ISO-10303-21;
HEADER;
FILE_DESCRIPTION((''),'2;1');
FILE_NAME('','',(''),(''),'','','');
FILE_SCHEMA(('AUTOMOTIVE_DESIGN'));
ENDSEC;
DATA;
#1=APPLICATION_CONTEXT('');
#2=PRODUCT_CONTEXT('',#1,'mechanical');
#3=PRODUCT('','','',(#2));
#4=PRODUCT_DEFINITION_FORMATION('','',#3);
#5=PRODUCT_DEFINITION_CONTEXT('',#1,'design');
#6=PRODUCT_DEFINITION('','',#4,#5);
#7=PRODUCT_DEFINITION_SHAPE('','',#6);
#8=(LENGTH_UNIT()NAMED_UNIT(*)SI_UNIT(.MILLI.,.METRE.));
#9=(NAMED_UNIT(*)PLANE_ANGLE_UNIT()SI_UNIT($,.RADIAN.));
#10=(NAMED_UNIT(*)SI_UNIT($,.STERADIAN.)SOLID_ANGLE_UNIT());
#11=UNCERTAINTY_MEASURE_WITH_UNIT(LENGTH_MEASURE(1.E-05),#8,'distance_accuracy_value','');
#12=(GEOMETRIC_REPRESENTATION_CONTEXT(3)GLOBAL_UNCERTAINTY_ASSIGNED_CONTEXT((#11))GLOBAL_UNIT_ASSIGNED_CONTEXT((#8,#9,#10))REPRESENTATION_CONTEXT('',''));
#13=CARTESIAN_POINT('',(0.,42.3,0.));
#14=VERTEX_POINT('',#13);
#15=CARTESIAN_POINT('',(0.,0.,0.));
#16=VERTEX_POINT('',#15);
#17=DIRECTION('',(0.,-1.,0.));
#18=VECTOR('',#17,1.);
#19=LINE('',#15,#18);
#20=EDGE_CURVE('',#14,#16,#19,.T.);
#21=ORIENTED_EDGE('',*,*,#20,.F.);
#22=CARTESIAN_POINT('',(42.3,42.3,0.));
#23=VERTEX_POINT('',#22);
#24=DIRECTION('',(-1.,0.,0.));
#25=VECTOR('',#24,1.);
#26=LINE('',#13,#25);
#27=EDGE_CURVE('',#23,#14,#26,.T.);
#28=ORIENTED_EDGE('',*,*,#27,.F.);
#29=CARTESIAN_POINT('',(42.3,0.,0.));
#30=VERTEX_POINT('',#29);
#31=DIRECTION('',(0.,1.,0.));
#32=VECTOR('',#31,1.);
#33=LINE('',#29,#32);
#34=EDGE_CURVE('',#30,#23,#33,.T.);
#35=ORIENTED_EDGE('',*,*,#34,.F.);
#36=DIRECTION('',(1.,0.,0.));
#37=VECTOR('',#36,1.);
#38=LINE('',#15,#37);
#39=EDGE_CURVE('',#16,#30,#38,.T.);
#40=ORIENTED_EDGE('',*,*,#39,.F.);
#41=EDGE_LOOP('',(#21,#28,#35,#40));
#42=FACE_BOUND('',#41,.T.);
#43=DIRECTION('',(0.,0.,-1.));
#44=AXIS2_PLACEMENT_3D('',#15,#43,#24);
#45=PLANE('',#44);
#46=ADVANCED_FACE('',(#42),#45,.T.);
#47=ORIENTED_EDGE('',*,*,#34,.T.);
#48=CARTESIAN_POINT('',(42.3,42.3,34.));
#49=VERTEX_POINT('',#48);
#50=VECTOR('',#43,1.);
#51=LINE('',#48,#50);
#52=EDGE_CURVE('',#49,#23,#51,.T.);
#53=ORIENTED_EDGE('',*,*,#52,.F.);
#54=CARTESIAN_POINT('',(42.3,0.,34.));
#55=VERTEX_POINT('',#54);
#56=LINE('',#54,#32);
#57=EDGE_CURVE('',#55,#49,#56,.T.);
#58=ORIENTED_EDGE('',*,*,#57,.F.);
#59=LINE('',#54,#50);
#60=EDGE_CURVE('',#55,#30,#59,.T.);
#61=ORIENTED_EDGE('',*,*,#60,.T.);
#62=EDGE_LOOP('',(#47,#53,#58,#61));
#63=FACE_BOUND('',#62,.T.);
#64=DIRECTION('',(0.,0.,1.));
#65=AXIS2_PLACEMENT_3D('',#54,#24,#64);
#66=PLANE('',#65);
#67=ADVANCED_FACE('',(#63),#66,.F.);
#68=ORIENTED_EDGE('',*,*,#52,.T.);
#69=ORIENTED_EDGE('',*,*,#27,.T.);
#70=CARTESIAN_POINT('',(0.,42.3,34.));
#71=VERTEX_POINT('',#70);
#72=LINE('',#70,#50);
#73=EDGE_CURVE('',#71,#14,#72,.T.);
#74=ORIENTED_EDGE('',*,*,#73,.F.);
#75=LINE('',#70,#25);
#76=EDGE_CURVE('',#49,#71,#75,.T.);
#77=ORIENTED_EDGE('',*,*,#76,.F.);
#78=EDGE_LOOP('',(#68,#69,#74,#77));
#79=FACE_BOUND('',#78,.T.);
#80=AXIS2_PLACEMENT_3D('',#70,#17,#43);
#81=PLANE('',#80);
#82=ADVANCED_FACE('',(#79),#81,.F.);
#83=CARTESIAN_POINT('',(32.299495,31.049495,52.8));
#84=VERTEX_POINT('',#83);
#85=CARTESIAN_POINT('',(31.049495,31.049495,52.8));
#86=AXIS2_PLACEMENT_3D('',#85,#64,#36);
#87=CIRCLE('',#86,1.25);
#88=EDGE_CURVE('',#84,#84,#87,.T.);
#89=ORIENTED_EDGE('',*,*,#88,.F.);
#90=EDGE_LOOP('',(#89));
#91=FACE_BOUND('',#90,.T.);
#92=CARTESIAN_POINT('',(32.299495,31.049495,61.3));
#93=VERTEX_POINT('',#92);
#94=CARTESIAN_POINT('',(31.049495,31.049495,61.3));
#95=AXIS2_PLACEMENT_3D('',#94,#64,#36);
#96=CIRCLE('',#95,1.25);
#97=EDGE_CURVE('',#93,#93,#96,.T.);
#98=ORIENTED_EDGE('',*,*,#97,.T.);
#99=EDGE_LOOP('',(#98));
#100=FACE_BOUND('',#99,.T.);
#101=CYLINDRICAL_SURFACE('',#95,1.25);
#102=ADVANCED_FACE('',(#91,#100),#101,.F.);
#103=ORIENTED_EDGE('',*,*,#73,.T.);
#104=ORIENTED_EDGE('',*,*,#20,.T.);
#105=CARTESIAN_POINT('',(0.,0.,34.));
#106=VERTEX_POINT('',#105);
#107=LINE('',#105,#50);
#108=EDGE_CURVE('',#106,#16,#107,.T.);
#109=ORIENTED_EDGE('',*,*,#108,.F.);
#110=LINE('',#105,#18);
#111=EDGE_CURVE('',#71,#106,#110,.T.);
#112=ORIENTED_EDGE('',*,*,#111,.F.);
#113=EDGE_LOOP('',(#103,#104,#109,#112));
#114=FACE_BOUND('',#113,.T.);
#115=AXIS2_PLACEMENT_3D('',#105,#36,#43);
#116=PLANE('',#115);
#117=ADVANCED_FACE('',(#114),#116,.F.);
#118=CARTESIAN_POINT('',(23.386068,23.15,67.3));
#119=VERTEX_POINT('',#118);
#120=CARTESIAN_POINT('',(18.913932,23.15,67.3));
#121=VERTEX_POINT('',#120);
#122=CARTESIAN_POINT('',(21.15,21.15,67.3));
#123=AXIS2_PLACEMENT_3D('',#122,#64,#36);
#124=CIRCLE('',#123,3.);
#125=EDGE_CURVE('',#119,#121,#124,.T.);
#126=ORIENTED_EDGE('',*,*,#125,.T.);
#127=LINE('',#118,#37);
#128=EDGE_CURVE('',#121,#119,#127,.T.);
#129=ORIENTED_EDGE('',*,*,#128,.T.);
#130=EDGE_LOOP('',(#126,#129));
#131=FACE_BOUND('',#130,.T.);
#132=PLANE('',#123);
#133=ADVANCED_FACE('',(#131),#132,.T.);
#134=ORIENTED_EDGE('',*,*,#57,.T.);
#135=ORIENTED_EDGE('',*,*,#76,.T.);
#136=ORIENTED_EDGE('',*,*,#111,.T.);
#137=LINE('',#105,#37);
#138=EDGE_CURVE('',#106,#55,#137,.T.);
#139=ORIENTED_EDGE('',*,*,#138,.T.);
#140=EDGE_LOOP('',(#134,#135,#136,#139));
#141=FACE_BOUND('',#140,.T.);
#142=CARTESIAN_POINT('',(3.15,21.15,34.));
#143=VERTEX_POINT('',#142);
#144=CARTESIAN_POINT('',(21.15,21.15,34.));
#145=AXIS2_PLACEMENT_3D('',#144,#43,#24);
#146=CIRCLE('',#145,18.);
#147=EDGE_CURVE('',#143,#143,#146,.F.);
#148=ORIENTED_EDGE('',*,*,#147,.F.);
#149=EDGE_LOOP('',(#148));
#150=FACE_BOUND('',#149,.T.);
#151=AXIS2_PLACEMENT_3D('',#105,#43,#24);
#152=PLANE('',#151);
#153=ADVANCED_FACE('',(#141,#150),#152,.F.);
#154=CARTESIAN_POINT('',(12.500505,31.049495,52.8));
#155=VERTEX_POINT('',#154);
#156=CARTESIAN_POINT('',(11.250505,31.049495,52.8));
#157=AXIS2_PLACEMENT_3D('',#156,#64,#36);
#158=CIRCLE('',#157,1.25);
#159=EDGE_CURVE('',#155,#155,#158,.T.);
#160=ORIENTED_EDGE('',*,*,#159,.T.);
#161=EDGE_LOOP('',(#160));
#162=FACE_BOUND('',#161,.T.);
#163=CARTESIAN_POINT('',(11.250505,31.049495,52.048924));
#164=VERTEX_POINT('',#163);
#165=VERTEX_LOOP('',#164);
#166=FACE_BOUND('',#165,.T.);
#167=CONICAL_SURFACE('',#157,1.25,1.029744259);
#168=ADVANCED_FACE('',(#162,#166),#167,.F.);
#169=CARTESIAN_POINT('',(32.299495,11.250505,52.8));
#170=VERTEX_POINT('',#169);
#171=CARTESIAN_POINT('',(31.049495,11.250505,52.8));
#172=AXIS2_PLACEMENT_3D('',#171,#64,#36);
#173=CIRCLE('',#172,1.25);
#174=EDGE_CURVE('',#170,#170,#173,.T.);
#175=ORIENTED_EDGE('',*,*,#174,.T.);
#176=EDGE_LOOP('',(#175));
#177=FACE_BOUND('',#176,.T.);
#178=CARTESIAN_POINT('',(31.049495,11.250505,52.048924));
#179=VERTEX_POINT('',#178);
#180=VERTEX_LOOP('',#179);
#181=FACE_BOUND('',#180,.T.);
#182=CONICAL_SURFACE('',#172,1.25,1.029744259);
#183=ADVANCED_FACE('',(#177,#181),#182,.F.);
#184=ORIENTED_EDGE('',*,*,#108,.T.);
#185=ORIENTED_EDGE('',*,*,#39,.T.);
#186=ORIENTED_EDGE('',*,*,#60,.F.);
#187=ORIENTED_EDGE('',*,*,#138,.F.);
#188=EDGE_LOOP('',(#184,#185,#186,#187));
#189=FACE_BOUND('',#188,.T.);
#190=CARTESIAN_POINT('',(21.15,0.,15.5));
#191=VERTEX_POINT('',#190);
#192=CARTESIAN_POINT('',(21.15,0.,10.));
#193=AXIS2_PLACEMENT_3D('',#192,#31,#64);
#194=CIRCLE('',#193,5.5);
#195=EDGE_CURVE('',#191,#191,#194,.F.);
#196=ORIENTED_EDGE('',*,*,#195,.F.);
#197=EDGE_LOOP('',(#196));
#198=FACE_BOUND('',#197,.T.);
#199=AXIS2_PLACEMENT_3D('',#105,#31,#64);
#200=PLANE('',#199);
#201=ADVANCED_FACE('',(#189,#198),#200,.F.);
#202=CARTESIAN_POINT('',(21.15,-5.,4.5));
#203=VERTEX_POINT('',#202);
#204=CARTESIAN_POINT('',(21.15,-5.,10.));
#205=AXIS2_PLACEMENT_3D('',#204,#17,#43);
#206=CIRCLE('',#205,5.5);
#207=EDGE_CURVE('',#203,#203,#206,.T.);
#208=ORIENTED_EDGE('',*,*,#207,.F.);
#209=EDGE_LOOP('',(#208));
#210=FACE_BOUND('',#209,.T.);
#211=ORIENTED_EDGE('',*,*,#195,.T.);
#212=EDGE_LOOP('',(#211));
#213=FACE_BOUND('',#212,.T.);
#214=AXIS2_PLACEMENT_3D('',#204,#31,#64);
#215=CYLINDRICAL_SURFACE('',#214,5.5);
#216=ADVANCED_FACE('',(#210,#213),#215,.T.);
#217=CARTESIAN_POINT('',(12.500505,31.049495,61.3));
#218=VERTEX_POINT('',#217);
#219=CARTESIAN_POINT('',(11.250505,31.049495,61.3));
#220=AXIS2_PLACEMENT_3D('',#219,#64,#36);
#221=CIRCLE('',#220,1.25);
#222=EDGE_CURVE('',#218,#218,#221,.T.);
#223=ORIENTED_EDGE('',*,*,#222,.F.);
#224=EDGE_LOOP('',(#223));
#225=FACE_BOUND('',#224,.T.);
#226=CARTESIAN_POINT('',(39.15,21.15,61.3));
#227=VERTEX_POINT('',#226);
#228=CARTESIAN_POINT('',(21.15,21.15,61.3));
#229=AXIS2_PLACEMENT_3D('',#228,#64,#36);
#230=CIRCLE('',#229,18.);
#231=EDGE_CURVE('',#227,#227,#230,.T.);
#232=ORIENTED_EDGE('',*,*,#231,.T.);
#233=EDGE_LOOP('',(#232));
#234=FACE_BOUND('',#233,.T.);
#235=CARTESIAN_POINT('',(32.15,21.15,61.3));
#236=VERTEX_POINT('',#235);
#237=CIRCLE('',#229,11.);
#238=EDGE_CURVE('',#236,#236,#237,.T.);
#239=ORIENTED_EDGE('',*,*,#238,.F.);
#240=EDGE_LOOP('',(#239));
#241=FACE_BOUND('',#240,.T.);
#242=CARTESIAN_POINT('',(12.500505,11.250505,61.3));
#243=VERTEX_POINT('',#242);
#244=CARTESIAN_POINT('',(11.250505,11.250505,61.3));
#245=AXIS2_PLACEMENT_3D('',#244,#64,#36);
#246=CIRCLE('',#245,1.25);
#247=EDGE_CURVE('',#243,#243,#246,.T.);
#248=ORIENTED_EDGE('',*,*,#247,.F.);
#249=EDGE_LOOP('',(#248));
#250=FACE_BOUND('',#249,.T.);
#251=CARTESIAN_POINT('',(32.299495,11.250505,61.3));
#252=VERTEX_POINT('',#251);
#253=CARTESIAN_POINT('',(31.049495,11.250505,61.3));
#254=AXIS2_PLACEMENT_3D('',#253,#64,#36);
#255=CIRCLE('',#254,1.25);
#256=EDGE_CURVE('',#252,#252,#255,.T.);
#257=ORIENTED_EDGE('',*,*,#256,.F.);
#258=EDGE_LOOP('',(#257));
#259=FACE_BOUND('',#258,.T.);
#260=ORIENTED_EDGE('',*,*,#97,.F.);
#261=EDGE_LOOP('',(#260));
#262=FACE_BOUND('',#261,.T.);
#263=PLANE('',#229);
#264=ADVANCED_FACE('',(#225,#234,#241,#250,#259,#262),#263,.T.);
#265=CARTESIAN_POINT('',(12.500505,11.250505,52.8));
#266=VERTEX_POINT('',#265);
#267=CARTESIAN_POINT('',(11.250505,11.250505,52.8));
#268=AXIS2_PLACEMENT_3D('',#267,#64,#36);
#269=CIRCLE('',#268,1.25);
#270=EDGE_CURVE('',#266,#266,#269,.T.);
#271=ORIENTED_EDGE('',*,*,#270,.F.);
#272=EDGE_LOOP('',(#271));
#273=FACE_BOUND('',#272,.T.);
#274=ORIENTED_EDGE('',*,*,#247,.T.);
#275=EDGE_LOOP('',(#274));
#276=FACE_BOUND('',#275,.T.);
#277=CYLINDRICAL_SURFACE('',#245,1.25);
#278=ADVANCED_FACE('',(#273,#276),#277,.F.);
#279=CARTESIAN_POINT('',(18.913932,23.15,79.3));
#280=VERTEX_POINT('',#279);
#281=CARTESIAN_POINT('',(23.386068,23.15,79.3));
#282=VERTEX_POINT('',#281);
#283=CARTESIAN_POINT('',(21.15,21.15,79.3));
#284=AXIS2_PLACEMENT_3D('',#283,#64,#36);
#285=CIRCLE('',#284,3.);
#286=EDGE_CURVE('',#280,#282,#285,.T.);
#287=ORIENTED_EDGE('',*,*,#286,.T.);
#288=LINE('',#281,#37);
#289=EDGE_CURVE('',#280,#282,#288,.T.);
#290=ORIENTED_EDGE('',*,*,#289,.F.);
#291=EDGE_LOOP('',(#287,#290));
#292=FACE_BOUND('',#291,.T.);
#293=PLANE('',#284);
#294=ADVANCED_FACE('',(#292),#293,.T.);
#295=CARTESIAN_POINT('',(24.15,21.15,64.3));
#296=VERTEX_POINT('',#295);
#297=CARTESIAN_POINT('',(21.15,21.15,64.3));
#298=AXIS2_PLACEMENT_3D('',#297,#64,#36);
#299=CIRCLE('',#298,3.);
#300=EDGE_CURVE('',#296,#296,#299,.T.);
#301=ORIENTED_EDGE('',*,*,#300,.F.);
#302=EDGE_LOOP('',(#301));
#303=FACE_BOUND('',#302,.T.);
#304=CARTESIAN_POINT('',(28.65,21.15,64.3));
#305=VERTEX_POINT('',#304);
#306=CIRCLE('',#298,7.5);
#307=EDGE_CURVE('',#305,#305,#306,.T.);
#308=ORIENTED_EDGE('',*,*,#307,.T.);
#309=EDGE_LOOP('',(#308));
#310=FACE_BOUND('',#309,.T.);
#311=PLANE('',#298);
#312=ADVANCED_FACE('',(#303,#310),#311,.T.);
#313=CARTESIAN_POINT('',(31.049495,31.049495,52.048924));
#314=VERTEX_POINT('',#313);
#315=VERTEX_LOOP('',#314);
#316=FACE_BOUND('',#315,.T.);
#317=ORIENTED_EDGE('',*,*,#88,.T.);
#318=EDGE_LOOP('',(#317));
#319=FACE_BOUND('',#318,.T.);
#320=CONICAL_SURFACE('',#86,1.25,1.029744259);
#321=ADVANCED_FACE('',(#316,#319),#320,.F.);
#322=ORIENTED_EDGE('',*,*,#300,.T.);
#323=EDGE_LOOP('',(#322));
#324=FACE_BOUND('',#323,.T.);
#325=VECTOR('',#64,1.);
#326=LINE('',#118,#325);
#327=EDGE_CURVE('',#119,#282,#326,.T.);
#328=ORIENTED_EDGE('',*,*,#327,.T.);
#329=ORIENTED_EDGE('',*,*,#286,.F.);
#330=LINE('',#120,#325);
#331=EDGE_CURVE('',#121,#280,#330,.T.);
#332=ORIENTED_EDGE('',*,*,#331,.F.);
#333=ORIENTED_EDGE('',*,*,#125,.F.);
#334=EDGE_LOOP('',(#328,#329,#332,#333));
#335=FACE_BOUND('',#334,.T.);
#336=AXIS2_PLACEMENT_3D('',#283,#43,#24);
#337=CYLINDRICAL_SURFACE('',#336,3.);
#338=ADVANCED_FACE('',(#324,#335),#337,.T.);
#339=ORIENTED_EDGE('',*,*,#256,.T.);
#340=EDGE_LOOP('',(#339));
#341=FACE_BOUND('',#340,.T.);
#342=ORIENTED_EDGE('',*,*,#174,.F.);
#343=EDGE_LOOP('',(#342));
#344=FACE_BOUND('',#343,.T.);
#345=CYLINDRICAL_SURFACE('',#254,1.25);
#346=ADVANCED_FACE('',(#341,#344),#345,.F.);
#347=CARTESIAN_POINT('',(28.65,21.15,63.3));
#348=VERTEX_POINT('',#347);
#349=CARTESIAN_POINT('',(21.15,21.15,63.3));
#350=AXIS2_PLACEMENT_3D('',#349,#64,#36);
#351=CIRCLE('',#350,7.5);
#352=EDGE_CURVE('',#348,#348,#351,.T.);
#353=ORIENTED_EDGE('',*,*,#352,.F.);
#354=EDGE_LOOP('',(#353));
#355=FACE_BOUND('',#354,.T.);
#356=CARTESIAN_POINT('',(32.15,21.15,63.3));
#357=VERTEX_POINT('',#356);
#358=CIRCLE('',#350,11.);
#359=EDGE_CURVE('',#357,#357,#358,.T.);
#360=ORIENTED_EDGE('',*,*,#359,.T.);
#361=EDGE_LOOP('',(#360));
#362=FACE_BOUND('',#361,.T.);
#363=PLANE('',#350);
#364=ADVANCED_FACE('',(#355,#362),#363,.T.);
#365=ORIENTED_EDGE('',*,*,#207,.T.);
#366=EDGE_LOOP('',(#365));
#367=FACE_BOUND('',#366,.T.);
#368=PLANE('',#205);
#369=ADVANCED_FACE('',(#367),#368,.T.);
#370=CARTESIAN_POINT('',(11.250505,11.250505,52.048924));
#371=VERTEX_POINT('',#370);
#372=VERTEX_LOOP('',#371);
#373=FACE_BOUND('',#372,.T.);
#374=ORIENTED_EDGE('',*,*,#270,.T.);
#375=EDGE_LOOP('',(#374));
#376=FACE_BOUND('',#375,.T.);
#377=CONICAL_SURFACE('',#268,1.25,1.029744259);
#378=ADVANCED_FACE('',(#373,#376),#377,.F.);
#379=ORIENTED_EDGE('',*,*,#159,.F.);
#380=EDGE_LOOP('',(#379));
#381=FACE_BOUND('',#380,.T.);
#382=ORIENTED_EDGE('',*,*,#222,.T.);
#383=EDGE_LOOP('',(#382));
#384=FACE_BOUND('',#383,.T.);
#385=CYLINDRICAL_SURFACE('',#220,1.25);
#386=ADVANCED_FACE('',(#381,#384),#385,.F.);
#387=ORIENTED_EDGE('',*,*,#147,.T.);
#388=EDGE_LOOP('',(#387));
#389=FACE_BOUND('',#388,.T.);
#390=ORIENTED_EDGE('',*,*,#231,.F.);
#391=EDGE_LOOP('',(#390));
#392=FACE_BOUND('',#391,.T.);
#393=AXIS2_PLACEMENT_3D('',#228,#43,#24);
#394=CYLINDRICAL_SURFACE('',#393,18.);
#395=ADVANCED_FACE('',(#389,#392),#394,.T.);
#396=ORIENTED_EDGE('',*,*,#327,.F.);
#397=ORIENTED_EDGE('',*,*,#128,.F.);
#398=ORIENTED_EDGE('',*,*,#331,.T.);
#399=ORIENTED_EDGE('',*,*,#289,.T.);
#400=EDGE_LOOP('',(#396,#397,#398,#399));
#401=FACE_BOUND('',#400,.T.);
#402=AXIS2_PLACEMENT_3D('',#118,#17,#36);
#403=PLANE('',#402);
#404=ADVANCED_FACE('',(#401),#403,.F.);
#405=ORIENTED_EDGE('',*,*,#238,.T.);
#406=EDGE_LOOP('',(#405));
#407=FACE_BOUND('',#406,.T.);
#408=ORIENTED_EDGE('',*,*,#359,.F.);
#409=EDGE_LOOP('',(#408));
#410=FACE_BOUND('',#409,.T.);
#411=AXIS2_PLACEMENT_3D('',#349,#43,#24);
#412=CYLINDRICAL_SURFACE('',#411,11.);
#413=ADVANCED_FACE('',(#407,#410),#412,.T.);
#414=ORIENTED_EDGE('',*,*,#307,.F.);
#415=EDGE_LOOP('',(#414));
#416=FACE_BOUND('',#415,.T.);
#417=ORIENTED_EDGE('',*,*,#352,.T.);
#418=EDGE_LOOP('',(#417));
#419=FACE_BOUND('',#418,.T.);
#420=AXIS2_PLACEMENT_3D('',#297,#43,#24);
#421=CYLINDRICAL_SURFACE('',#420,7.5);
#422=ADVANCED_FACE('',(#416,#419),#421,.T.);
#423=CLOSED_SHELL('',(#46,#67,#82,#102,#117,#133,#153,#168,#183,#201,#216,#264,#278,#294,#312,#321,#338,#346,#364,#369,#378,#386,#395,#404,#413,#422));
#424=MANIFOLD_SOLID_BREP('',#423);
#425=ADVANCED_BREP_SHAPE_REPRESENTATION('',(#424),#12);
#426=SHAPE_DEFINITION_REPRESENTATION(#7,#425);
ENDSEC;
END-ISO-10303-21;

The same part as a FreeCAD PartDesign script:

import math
import FreeCAD as App
import Part
import Sketcher
from FreeCAD import Vector
Q = App.Units.Quantity


def add_polygon(sketch, points):
    """Adds a closed chain of lines whose ends are joined by coincident constraints."""
    first, n = sketch.GeometryCount, len(points)
    for a, b in zip(points, points[1:] + points[:1]):
        sketch.addGeometry(Part.LineSegment(App.Vector(*a, 0), App.Vector(*b, 0)), False)
    for i in range(n):
        sketch.addConstraint(Sketcher.Constraint("Coincident", first + i, 2, first + (i + 1) % n, 1))

doc = App.newDocument("Part")
body = doc.addObject("PartDesign::Body", "Body")

sketch1 = body.newObject("Sketcher::SketchObject", "Sketch")
sketch1.AttachmentSupport = (doc.getObject("XY_Plane"), [""])
sketch1.MapMode = "FlatFace"
add_polygon(sketch1, [(0, 42), (0, 0), (42, 0), (42, 42)])
sketch1.addConstraint(Sketcher.Constraint("Vertical", 0))
sketch1.addConstraint(Sketcher.Constraint("Horizontal", 1))
sketch1.addConstraint(Sketcher.Constraint("Vertical", 2))
sketch1.addConstraint(Sketcher.Constraint("Horizontal", 3))
sketch1.addConstraint(Sketcher.Constraint("Coincident", 0, 2, -1, 1))
sketch1.addConstraint(Sketcher.Constraint("Equal", 3, 0))
sketch1.addConstraint(Sketcher.Constraint("DistanceX", 1, 1, 1, 2, Q("42.3 mm")))
pad1 = body.newObject("PartDesign::Pad", "Pad")
pad1.Profile = sketch1
pad1.Length = 34

sketch2 = body.newObject("Sketcher::SketchObject", "Sketch001")
sketch2.AttachmentSupport = (doc.getObject("XY_Plane"), [""])
sketch2.MapMode = "FlatFace"
sketch2.AttachmentOffset = App.Placement(Vector(0, 0, 34), App.Rotation())
sketch2.addGeometry(Part.Circle(Vector(21, 21, 0), Vector(0, 0, 1), 18), False)
sketch2.addConstraint(Sketcher.Constraint("Diameter", 0, Q("36 mm")))
sketch2.addConstraint(Sketcher.Constraint("DistanceX", -1, 1, 0, 3, Q("21.15 mm")))
sketch2.addConstraint(Sketcher.Constraint("DistanceY", -1, 1, 0, 3, Q("21.15 mm")))
pad2 = body.newObject("PartDesign::Pad", "Pad001")
pad2.Profile = sketch2
pad2.Length = 27.3

sketch3 = body.newObject("Sketcher::SketchObject", "Sketch002")
sketch3.AttachmentSupport = (doc.getObject("XY_Plane"), [""])
sketch3.MapMode = "FlatFace"
sketch3.AttachmentOffset = App.Placement(Vector(0, 0, 61.3), App.Rotation())
sketch3.addGeometry(Part.Circle(Vector(21, 21, 0), Vector(0, 0, 1), 11), False)
sketch3.addConstraint(Sketcher.Constraint("Diameter", 0, Q("22 mm")))
sketch3.addConstraint(Sketcher.Constraint("DistanceX", -1, 1, 0, 3, Q("21.15 mm")))
sketch3.addConstraint(Sketcher.Constraint("DistanceY", -1, 1, 0, 3, Q("21.15 mm")))
pad3 = body.newObject("PartDesign::Pad", "Pad002")
pad3.Profile = sketch3
pad3.Length = 2

sketch4 = body.newObject("Sketcher::SketchObject", "Sketch003")
sketch4.AttachmentSupport = (doc.getObject("XY_Plane"), [""])
sketch4.MapMode = "FlatFace"
sketch4.AttachmentOffset = App.Placement(Vector(0, 0, 63.3), App.Rotation())
sketch4.addGeometry(Part.Circle(Vector(21, 21, 0), Vector(0, 0, 1), 8), False)
sketch4.addConstraint(Sketcher.Constraint("Diameter", 0, Q("15 mm")))
sketch4.addConstraint(Sketcher.Constraint("DistanceX", -1, 1, 0, 3, Q("21.15 mm")))
sketch4.addConstraint(Sketcher.Constraint("DistanceY", -1, 1, 0, 3, Q("21.15 mm")))
pad4 = body.newObject("PartDesign::Pad", "Pad003")
pad4.Profile = sketch4
pad4.Length = 1

sketch5 = body.newObject("Sketcher::SketchObject", "Sketch004")
sketch5.AttachmentSupport = (doc.getObject("XY_Plane"), [""])
sketch5.MapMode = "FlatFace"
sketch5.AttachmentOffset = App.Placement(Vector(0, 0, 64.3), App.Rotation())
sketch5.addGeometry(Part.Circle(Vector(21.1, 21.1, 0), Vector(0, 0, 1), 3), False)
sketch5.addConstraint(Sketcher.Constraint("Diameter", 0, Q("6 mm")))
sketch5.addConstraint(Sketcher.Constraint("DistanceX", -1, 1, 0, 3, Q("21.15 mm")))
sketch5.addConstraint(Sketcher.Constraint("DistanceY", -1, 1, 0, 3, Q("21.15 mm")))
pad5 = body.newObject("PartDesign::Pad", "Pad004")
pad5.Profile = sketch5
pad5.Length = 15

sketch6 = body.newObject("Sketcher::SketchObject", "Sketch005")
sketch6.AttachmentSupport = (doc.getObject("XY_Plane"), [""])
sketch6.MapMode = "FlatFace"
sketch6.AttachmentOffset = App.Placement(Vector(0, 0, 67.3), App.Rotation())
sketch6.addGeometry(Part.LineSegment(Vector(18.9, 23.1, 0), Vector(23.4, 23.1, 0)), False)
sketch6.addGeometry(Part.ArcOfCircle(Part.Circle(Vector(21.1, 21.2, 0), Vector(0, 0, 1), 3), math.radians(42), math.radians(138)), False)
sketch6.addConstraint(Sketcher.Constraint("Coincident", 0, 1, 1, 2))
sketch6.addConstraint(Sketcher.Constraint("Coincident", 1, 1, 0, 2))
sketch6.addConstraint(Sketcher.Constraint("Horizontal", 0))
sketch6.addConstraint(Sketcher.Constraint("Radius", 1, Q("3 mm")))
sketch6.addConstraint(Sketcher.Constraint("DistanceY", 1, 3, 0, 1, Q("2 mm")))
sketch6.addConstraint(Sketcher.Constraint("DistanceX", -1, 1, 1, 3, Q("21.15 mm")))
sketch6.addConstraint(Sketcher.Constraint("DistanceY", -1, 1, 1, 3, Q("21.15 mm")))
pocket1 = body.newObject("PartDesign::Pocket", "Pocket")
pocket1.Profile = sketch6
pocket1.Length = 12
pocket1.Reversed = True

sketch7 = body.newObject("Sketcher::SketchObject", "Sketch006")
sketch7.AttachmentSupport = (doc.getObject("XY_Plane"), [""])
sketch7.MapMode = "FlatFace"
sketch7.AttachmentOffset = App.Placement(Vector(0, 0, 61.3), App.Rotation())
sketch7.addGeometry(Part.Circle(Vector(11.3, 11.3, 0), Vector(0, 0, 1), 1.2), False)
sketch7.addGeometry(Part.Circle(Vector(31, 11.3, 0), Vector(0, 0, 1), 1.2), False)
sketch7.addGeometry(Part.Circle(Vector(31, 31, 0), Vector(0, 0, 1), 1.2), False)
sketch7.addGeometry(Part.Circle(Vector(11.3, 31, 0), Vector(0, 0, 1), 1.2), False)
sketch7.addConstraint(Sketcher.Constraint("Equal", 0, 1))
sketch7.addConstraint(Sketcher.Constraint("Equal", 1, 2))
sketch7.addConstraint(Sketcher.Constraint("Equal", 2, 3))
sketch7.addConstraint(Sketcher.Constraint("Horizontal", 0, 3, 1, 3))
sketch7.addConstraint(Sketcher.Constraint("Horizontal", 2, 3, 3, 3))
sketch7.addConstraint(Sketcher.Constraint("Vertical", 1, 3, 2, 3))
sketch7.addConstraint(Sketcher.Constraint("Vertical", 0, 3, 3, 3))
sketch7.addConstraint(Sketcher.Constraint("Diameter", 0, Q("2.5 mm")))
sketch7.addConstraint(Sketcher.Constraint("DistanceX", 0, 3, 1, 3, Q("19.79899 mm")))
sketch7.addConstraint(Sketcher.Constraint("DistanceY", 1, 3, 2, 3, Q("19.79899 mm")))
sketch7.addConstraint(Sketcher.Constraint("DistanceX", -1, 1, 0, 3, Q("11.250505 mm")))
sketch7.addConstraint(Sketcher.Constraint("DistanceY", -1, 1, 0, 3, Q("11.250505 mm")))
doc.recompute()
hole = body.newObject("PartDesign::Hole", "Hole")
hole.Profile = sketch7
hole.ThreadType = "None"
hole.Diameter = 2.5
hole.DepthType = "Dimension"
hole.Depth = 8.5
hole.DrillPoint = "Angled"
hole.DrillPointAngle = 118

sketch8 = body.newObject("Sketcher::SketchObject", "Sketch007")
sketch8.AttachmentSupport = (doc.getObject("XZ_Plane"), [""])
sketch8.MapMode = "FlatFace"
sketch8.addGeometry(Part.Circle(Vector(21, 10, 0), Vector(0, 0, 1), 6), False)
sketch8.addConstraint(Sketcher.Constraint("Diameter", 0, Q("11 mm")))
sketch8.addConstraint(Sketcher.Constraint("DistanceY", -1, 1, 0, 3, Q("10 mm")))
sketch8.addConstraint(Sketcher.Constraint("DistanceX", -1, 1, 0, 3, Q("21.15 mm")))
pad6 = body.newObject("PartDesign::Pad", "Pad005")
pad6.Profile = sketch8
pad6.Length = 5

doc.recompute()
